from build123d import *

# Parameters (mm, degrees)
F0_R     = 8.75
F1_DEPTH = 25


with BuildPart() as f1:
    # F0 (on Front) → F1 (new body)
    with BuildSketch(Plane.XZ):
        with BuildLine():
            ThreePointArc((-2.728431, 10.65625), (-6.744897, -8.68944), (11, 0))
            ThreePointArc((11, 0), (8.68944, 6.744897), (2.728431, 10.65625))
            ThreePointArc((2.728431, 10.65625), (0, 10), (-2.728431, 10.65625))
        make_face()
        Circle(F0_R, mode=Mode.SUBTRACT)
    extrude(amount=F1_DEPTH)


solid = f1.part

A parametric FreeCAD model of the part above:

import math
import FreeCAD as App
import Part
import Sketcher

V = App.Vector

doc = App.newDocument("Part")
body = doc.addObject("PartDesign::Body", "Body")

# Sketch on XZ plane
sketch1 = body.newObject("Sketcher::SketchObject", "Sketch")
sketch1.AttachmentSupport = (doc.getObject("XZ_Plane"), [""])
sketch1.MapMode = "FlatFace"
sketch1.addGeometry([
    Part.ArcOfCircle(Part.Circle(V(0, 0, 0), V(0, 0, 1), 11), math.radians(104), math.radians(360)),
    Part.ArcOfCircle(Part.Circle(V(0, 0, 0), V(0, 0, 1), 11), math.radians(0), math.radians(76)),
    Part.ArcOfCircle(Part.Circle(V(0, 16, 0), V(0, 0, 1), 6), math.radians(-117), math.radians(-63)),
    Part.Circle(V(0, 0, 0), V(0, 0, 1), 9),
], False)
sketch1.addConstraint([
    Sketcher.Constraint("Tangent", 0, 2, 1, 1),
    Sketcher.Constraint("Coincident", 1, 2, 2, 2),
    Sketcher.Constraint("Coincident", 2, 1, 0, 1),
    Sketcher.Constraint("Coincident", 0, 3, -1, 1),
    Sketcher.Constraint("Coincident", 3, 3, -1, 1),
    Sketcher.Constraint("Equal", 0, 1),
    Sketcher.Constraint("PointOnObject", 2, 3, -2),
    Sketcher.Constraint("PointOnObject", 0, 2, -1),
    Sketcher.Constraint("Radius", 0, 11.0),
    Sketcher.Constraint("Radius", 2, 6.0),
    Sketcher.Constraint("Diameter", 3, 17.5),
    Sketcher.Constraint("DistanceY", -1, 1, 2, 3, 16.0),
])
pad1 = body.newObject("PartDesign::Pad", "Pad")
pad1.Profile = sketch1
pad1.Length = 25

doc.recompute()
